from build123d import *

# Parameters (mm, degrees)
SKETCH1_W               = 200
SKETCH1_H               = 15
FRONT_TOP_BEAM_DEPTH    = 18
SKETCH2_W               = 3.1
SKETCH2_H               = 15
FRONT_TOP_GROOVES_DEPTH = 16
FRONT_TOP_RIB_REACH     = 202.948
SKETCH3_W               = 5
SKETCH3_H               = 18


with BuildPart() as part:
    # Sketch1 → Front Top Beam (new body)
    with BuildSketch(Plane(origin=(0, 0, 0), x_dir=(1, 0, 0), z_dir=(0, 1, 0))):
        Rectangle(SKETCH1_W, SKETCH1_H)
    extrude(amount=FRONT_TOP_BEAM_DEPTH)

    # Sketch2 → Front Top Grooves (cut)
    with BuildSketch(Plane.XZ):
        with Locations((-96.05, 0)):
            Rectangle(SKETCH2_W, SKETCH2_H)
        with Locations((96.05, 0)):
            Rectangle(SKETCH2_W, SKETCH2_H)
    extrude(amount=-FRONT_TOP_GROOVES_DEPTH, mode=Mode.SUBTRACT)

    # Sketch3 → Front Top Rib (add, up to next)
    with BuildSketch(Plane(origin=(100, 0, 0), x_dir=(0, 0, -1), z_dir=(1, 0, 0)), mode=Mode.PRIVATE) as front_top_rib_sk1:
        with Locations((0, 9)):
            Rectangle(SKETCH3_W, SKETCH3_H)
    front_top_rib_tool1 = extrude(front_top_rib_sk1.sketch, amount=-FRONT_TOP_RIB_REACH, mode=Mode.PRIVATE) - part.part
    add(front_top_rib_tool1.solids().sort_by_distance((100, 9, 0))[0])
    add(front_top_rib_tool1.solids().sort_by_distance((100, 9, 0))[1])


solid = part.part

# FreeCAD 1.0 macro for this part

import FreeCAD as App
import Part
import Sketcher

doc = App.newDocument("Part")
body = doc.addObject("PartDesign::Body", "Body")

# Sketch on XZ plane
sketch1 = body.newObject("Sketcher::SketchObject", "Sketch")
sketch1.AttachmentSupport = (doc.getObject("XZ_Plane"), [""])
sketch1.MapMode = "FlatFace"
sketch1.addGeometry([
    Part.LineSegment(App.Vector(-100, -8, 0), App.Vector(-100, 8, 0)),
    Part.LineSegment(App.Vector(-100, 8, 0), App.Vector(100, 8, 0)),
    Part.LineSegment(App.Vector(100, 8, 0), App.Vector(100, -8, 0)),
    Part.LineSegment(App.Vector(100, -8, 0), App.Vector(-100, -8, 0)),
], False)
sketch1.addConstraint([
    Sketcher.Constraint("Coincident", 0, 2, 1, 1),
    Sketcher.Constraint("Coincident", 1, 2, 2, 1),
    Sketcher.Constraint("Coincident", 2, 2, 3, 1),
    Sketcher.Constraint("Coincident", 3, 2, 0, 1),
    Sketcher.Constraint("Vertical", 0),
    Sketcher.Constraint("Horizontal", 1),
    Sketcher.Constraint("Vertical", 2),
    Sketcher.Constraint("Horizontal", 3),
    Sketcher.Constraint("Symmetric", 0, 2, 2, 2, -1, 1),
    Sketcher.Constraint("DistanceX", 1, 1, 1, 2, 200.0),
    Sketcher.Constraint("DistanceY", 0, 1, 0, 2, 15.0),
])
pad1 = body.newObject("PartDesign::Pad", "Pad")
pad1.Profile = sketch1
pad1.Length = 18
pad1.Reversed = True

# Sketch on XZ plane
sketch2 = body.newObject("Sketcher::SketchObject", "Sketch001")
sketch2.AttachmentSupport = (doc.getObject("XZ_Plane"), [""])
sketch2.MapMode = "FlatFace"
sketch2.addGeometry([
    Part.LineSegment(App.Vector(-97.6, 7.5, 0), App.Vector(-97.6, -7.5, 0)),  # 0
    Part.LineSegment(App.Vector(-97.6, -7.5, 0), App.Vector(-94.5, -7.5, 0)),  # 1
    Part.LineSegment(App.Vector(-94.5, -7.5, 0), App.Vector(-94.5, 7.5, 0)),  # 2
    Part.LineSegment(App.Vector(-94.5, 7.5, 0), App.Vector(-97.6, 7.5, 0)),  # 3
    Part.LineSegment(App.Vector(94.5, 7.5, 0), App.Vector(94.5, -7.5, 0)),  # 4
    Part.LineSegment(App.Vector(94.5, -7.5, 0), App.Vector(97.6, -7.5, 0)),  # 5
    Part.LineSegment(App.Vector(97.6, -7.5, 0), App.Vector(97.6, 7.5, 0)),  # 6
    Part.LineSegment(App.Vector(97.6, 7.5, 0), App.Vector(94.5, 7.5, 0)),  # 7
], False)
sketch2.addConstraint([
    Sketcher.Constraint("Coincident", 0, 2, 1, 1),
    Sketcher.Constraint("Coincident", 1, 2, 2, 1),
    Sketcher.Constraint("Coincident", 2, 2, 3, 1),
    Sketcher.Constraint("Coincident", 3, 2, 0, 1),
    Sketcher.Constraint("Coincident", 4, 2, 5, 1),
    Sketcher.Constraint("Coincident", 5, 2, 6, 1),
    Sketcher.Constraint("Coincident", 6, 2, 7, 1),
    Sketcher.Constraint("Coincident", 7, 2, 4, 1),
    Sketcher.Constraint("Vertical", 0),
    Sketcher.Constraint("Horizontal", 1),
    Sketcher.Constraint("Vertical", 2),
    Sketcher.Constraint("Horizontal", 3),
    Sketcher.Constraint("Vertical", 4),
    Sketcher.Constraint("Horizontal", 5),
    Sketcher.Constraint("Vertical", 6),
    Sketcher.Constraint("Horizontal", 7),
    Sketcher.Constraint("Symmetric", 2, 2, 4, 2, -1, 1),
    Sketcher.Constraint("Symmetric", 0, 2, 6, 2, -1, 1),
    Sketcher.Constraint("Horizontal", 1, 2, 4, 2),
    Sketcher.Constraint("DistanceY", 0, 2, 0, 1, 15.0),
    Sketcher.Constraint("DistanceX", 1, 1, 1, 2, 3.1),
    Sketcher.Constraint("DistanceX", 1, 2, 4, 2, 189.0),
])
pocket1 = body.newObject("PartDesign::Pocket", "Pocket")
pocket1.Profile = sketch2
pocket1.Length = 16

# Sketch on YZ plane
sketch3 = body.newObject("Sketcher::SketchObject", "Sketch002")
sketch3.AttachmentSupport = (doc.getObject("YZ_Plane"), [""])
sketch3.MapMode = "FlatFace"
sketch3.AttachmentOffset = App.Placement(App.Vector(0, 0, 100), App.Rotation())
sketch3.addGeometry([
    Part.LineSegment(App.Vector(18, 2, 0), App.Vector(0, 2, 0)),
    Part.LineSegment(App.Vector(0, 2, 0), App.Vector(0, -2, 0)),
    Part.LineSegment(App.Vector(0, -2, 0), App.Vector(18, -2, 0)),
    Part.LineSegment(App.Vector(18, -2, 0), App.Vector(18, 2, 0)),
], False)
sketch3.addConstraint([
    Sketcher.Constraint("Coincident", 0, 2, 1, 1),
    Sketcher.Constraint("Coincident", 1, 2, 2, 1),
    Sketcher.Constraint("Coincident", 2, 2, 3, 1),
    Sketcher.Constraint("Coincident", 3, 2, 0, 1),
    Sketcher.Constraint("Horizontal", 0),
    Sketcher.Constraint("Vertical", 1),
    Sketcher.Constraint("Horizontal", 2),
    Sketcher.Constraint("Vertical", 3),
    Sketcher.Constraint("Symmetric", 0, 2, 1, 2, -1, 1),
    Sketcher.Constraint("DistanceX", 0, 2, 0, 1, 18.0),
    Sketcher.Constraint("DistanceY", 1, 2, 1, 1, 5.0),
])
pad2 = body.newObject("PartDesign::Pad", "Pad001")
pad2.Profile = sketch3
pad2.Length = 5.5
pad2.Reversed = True
pad3 = body.newObject("PartDesign::Pad", "Pad002")
pad3.Profile = sketch3
pad3.Length = 197.6
pad3.Reversed = True

doc.recompute()
